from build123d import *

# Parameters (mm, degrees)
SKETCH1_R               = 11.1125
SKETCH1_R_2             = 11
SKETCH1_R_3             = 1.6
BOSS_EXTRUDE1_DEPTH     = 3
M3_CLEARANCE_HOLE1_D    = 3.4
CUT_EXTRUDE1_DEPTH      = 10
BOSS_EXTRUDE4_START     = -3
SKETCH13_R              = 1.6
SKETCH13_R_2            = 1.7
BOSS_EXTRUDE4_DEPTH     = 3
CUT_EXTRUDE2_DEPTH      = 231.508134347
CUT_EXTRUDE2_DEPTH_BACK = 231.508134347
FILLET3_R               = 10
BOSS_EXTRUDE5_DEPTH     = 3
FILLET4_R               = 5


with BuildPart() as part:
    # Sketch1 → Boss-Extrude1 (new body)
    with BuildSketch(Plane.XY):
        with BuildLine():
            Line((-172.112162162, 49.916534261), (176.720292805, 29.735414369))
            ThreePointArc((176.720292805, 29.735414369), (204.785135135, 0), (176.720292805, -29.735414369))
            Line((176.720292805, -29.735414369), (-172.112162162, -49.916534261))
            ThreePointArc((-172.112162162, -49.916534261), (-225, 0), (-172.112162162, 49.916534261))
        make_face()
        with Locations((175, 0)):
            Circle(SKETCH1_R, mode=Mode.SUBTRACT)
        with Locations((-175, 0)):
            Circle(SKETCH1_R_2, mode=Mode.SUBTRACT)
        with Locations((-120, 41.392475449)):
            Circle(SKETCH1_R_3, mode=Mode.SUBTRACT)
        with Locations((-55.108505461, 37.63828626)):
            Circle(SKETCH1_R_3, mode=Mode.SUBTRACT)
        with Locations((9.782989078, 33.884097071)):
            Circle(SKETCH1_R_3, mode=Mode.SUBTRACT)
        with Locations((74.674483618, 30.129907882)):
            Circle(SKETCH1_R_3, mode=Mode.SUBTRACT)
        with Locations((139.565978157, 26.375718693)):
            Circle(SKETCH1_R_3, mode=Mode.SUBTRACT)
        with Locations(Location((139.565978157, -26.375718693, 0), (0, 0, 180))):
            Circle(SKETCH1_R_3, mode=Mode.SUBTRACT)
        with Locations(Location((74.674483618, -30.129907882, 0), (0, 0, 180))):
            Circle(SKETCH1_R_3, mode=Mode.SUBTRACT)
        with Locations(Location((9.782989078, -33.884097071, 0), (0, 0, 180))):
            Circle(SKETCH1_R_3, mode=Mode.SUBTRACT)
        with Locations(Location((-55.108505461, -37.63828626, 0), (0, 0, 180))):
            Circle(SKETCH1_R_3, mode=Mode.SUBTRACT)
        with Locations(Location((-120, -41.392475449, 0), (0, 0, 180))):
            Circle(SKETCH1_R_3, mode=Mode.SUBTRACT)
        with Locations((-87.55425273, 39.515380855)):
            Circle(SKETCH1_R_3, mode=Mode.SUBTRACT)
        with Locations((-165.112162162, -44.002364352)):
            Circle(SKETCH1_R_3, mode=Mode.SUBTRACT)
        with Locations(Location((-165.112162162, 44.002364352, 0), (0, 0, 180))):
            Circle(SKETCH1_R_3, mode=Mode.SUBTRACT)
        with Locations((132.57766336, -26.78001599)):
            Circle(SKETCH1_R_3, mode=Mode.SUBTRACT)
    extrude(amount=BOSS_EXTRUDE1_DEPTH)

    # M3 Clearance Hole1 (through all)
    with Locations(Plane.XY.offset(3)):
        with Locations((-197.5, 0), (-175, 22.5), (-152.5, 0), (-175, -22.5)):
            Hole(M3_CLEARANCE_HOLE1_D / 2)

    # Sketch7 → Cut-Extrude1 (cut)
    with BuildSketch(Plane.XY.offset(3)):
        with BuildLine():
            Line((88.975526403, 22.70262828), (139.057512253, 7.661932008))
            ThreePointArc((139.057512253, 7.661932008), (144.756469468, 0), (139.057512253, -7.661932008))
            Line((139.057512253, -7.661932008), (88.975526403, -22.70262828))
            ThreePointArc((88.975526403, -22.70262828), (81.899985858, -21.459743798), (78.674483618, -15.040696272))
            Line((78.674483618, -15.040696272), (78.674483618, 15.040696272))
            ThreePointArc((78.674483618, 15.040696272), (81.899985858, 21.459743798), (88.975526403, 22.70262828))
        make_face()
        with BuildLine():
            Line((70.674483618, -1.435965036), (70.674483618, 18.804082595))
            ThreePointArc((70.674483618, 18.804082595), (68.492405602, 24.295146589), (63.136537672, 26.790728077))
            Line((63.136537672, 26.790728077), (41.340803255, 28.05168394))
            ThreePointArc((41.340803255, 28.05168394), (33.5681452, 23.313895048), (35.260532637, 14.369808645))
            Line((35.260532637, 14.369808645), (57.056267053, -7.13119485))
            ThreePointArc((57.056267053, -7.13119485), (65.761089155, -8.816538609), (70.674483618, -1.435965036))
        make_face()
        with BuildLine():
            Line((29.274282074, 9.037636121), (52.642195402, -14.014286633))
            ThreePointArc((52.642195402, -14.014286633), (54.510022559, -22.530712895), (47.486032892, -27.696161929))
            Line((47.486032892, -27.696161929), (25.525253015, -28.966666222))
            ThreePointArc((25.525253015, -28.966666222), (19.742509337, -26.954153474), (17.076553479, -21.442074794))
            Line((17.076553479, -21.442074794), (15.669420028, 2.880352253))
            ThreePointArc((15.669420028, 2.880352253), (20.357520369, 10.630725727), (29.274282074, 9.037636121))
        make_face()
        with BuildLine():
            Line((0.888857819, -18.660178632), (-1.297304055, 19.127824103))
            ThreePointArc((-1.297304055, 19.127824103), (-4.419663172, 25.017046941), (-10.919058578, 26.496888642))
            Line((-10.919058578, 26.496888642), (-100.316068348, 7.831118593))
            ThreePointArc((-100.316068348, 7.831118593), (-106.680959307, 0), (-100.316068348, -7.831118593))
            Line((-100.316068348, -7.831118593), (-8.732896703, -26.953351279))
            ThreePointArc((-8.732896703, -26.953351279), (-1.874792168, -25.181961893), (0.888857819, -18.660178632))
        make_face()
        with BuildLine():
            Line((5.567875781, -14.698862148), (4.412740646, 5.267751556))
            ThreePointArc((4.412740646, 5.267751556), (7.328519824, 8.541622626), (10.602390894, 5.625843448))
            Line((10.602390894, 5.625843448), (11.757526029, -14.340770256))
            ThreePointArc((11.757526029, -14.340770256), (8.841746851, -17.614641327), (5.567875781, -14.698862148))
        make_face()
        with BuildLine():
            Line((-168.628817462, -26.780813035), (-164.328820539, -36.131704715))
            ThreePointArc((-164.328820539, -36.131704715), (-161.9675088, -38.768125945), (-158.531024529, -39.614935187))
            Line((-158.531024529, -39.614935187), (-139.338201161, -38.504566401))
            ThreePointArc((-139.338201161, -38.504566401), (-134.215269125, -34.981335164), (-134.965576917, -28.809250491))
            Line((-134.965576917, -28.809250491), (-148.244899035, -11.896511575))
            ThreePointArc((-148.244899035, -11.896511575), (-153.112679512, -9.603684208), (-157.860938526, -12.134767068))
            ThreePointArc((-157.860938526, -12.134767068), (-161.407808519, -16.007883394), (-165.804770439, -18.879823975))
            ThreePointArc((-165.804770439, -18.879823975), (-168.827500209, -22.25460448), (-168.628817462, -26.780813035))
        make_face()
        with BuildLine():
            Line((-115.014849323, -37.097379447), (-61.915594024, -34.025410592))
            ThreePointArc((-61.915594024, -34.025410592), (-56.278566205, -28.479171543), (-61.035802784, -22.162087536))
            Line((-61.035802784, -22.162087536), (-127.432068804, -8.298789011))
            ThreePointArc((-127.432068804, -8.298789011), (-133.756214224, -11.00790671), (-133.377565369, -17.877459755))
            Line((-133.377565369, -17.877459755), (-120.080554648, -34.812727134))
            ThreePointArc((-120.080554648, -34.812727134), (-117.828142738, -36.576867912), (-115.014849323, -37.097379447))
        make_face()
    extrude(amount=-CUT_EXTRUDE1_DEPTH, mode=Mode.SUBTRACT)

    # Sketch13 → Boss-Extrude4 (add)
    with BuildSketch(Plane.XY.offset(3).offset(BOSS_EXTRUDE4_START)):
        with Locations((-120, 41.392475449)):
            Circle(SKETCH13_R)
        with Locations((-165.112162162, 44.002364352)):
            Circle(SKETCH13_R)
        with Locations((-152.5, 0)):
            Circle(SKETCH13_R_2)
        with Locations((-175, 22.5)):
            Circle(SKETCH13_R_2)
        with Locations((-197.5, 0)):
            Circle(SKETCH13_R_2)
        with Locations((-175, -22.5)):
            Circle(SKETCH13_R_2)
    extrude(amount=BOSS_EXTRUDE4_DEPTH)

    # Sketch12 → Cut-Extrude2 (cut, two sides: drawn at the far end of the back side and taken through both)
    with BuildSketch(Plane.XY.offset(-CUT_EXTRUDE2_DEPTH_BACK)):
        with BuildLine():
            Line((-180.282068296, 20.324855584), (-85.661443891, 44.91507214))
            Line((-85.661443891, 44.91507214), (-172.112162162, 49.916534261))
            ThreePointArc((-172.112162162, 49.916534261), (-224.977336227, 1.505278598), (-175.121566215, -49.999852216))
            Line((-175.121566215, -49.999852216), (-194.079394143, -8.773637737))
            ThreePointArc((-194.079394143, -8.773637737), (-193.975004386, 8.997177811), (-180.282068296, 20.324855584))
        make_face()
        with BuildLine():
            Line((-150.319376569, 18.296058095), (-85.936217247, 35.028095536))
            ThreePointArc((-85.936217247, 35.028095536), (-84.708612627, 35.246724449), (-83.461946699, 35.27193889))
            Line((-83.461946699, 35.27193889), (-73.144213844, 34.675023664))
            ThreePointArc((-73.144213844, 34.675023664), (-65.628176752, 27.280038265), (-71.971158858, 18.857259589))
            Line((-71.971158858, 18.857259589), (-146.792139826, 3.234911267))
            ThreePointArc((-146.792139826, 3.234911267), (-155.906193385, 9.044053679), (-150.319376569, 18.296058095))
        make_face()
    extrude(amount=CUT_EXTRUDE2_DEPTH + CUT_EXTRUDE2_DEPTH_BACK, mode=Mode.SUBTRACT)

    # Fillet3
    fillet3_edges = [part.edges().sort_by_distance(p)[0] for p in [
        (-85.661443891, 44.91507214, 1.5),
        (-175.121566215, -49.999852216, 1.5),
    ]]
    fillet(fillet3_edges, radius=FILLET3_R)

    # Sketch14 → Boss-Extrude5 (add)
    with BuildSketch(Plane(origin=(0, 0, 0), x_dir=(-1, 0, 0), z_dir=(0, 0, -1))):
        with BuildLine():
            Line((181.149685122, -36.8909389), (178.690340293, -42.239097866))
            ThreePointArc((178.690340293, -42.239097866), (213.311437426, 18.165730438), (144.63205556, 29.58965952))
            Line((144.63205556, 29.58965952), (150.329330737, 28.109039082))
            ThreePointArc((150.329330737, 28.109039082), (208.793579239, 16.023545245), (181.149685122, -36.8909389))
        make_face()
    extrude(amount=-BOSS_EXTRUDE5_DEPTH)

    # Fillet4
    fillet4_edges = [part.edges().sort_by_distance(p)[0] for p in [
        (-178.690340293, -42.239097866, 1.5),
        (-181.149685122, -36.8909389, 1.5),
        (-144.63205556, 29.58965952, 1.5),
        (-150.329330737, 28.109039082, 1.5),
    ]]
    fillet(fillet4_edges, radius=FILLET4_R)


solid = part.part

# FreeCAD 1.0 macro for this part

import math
import FreeCAD as App
import Part
import Sketcher

V = App.Vector


def edges_at(feature, points):
    """Names of the edges that pass closest to the given points."""
    edges = feature.Shape.Edges
    near = lambda p: min(range(len(edges)), key=lambda i: edges[i].distToShape(Part.Vertex(*p))[0])
    return sorted({f"Edge{near(p) + 1}" for p in points})

doc = App.newDocument("Part")
params = doc.addObject("Spreadsheet::Sheet", "Params")
for row, (alias, value) in enumerate([
    ("sketch1_diameter", "22 mm"),
    ("sketch1_radius", "50 mm"),
    ("sketch1_diameter2", "3.2 mm"),
    ("pad1_length", "3 mm"),
    ("sketch2_diameter", "3.4 mm"),
    ("hole_diameter", "3.4 mm"),
    ("sketch3_radius", "8 mm"),
    ("sketch3_radius2", "8 mm"),
    ("sketch3_radius3", "8 mm"),
    ("sketch3_radius4", "8 mm"),
    ("sketch3_radius5", "8 mm"),
    ("pocket1_length", "10 mm"),
    ("sketch4_diameter", "3.2 mm"),
    ("sketch4_diameter2", "3.4 mm"),
    ("pad2_length", "3 mm"),
    ("sketch5_radius", "50 mm"),
    ("sketch5_radius2", "21 mm"),
    ("sketch5_radius3", "8 mm"),
    ("fillet_radius", "10 mm"),
    ("sketch6_radius", "42.4 mm"),
    ("sketch6_radius2", "37.4 mm"),
    ("pad3_length", "3 mm"),
    ("fillet2_radius", "5 mm"),
], start=1):
    params.set(f"A{row}", alias)
    params.set(f"B{row}", "=" + value)
    params.setAlias(f"B{row}", alias)

body = doc.addObject("PartDesign::Body", "Body")

# Sketch on XY plane
sketch1 = body.newObject("Sketcher::SketchObject", "Sketch")
sketch1.AttachmentSupport = (doc.getObject("XY_Plane"), [""])
sketch1.MapMode = "FlatFace"
sketch1.addGeometry(Part.LineSegment(V(176.720293, 29.735414, 0), V(-172.112162, 49.916534, 0)), False)
sketch1.addGeometry(Part.ArcOfCircle(Part.Circle(V(-175, 0, 0), V(0, 0, 1), 50), math.radians(86.688939), math.radians(273.311061)), False)
sketch1.addGeometry(Part.LineSegment(V(-172.112162, -49.916534, 0), V(176.720293, -29.735414, 0)), False)
sketch1.addGeometry(Part.ArcOfCircle(Part.Circle(V(175, 0, 0), V(0, 0, 1), 29.785135), math.radians(-86.688939), math.radians(86.688939)), False)
sketch1.addGeometry(Part.Circle(V(139.565978, -26.375719, 0), V(0, 0, 1), 1.6), False)
sketch1.addGeometry(Part.Circle(V(132.577663, -26.780016, 0), V(0, 0, 1), 1.6), False)
sketch1.addGeometry(Part.Circle(V(74.674484, -30.129908, 0), V(0, 0, 1), 1.6), False)
sketch1.addGeometry(Part.Circle(V(9.782989, -33.884097, 0), V(0, 0, 1), 1.6), False)
sketch1.addGeometry(Part.Circle(V(175, 0, 0), V(0, 0, 1), 11.1125), False)
sketch1.addGeometry(Part.Circle(V(-55.108505, -37.638286, 0), V(0, 0, 1), 1.6), False)
sketch1.addGeometry(Part.Circle(V(-120, -41.392475, 0), V(0, 0, 1), 1.6), False)
sketch1.addGeometry(Part.Circle(V(-165.112162, -44.002364, 0), V(0, 0, 1), 1.6), False)
sketch1.addGeometry(Part.Circle(V(-175, 0, 0), V(0, 0, 1), 11), False)
sketch1.addGeometry(Part.Circle(V(139.565978, 26.375719, 0), V(0, 0, 1), 1.6), False)
sketch1.addGeometry(Part.Circle(V(74.674484, 30.129908, 0), V(0, 0, 1), 1.6), False)
sketch1.addGeometry(Part.Circle(V(9.782989, 33.884097, 0), V(0, 0, 1), 1.6), False)
sketch1.addGeometry(Part.Circle(V(-55.108505, 37.638286, 0), V(0, 0, 1), 1.6), False)
sketch1.addGeometry(Part.Circle(V(-87.554253, 39.515381, 0), V(0, 0, 1), 1.6), False)
sketch1.addGeometry(Part.Circle(V(-120, 41.392475, 0), V(0, 0, 1), 1.6), False)
sketch1.addGeometry(Part.Circle(V(-165.112162, 44.002364, 0), V(0, 0, 1), 1.6), False)
sketch1.addConstraint(Sketcher.Constraint("Tangent", 0, 2, 1, 1))
sketch1.addConstraint(Sketcher.Constraint("Tangent", 1, 2, 2, 1))
sketch1.addConstraint(Sketcher.Constraint("Tangent", 2, 2, 3, 1))
sketch1.addConstraint(Sketcher.Constraint("Tangent", 3, 2, 0, 1))
sketch1.addConstraint(Sketcher.Constraint("Coincident", 8, 3, 3, 3))
sketch1.addConstraint(Sketcher.Constraint("Coincident", 12, 3, 1, 3))
sketch1.addConstraint(Sketcher.Constraint("Equal", 4, 5))
sketch1.addConstraint(Sketcher.Constraint("Equal", 5, 6))
sketch1.addConstraint(Sketcher.Constraint("Equal", 6, 7))
sketch1.addConstraint(Sketcher.Constraint("Equal", 7, 9))
sketch1.addConstraint(Sketcher.Constraint("Equal", 9, 10))
sketch1.addConstraint(Sketcher.Constraint("Equal", 10, 11))
sketch1.addConstraint(Sketcher.Constraint("Equal", 11, 13))
sketch1.addConstraint(Sketcher.Constraint("Equal", 13, 14))
sketch1.addConstraint(Sketcher.Constraint("Equal", 14, 15))
sketch1.addConstraint(Sketcher.Constraint("Equal", 15, 16))
sketch1.addConstraint(Sketcher.Constraint("Equal", 16, 17))
sketch1.addConstraint(Sketcher.Constraint("Equal", 17, 18))
sketch1.addConstraint(Sketcher.Constraint("Equal", 18, 19))
sketch1.addConstraint(Sketcher.Constraint("Symmetric", 1, 3, 3, 3, -1, 1))
sketch1.addConstraint(Sketcher.Constraint("Symmetric", 4, 3, 13, 3, -1))
sketch1.addConstraint(Sketcher.Constraint("Symmetric", 6, 3, 14, 3, -1))
sketch1.addConstraint(Sketcher.Constraint("Symmetric", 7, 3, 15, 3, -1))
sketch1.addConstraint(Sketcher.Constraint("Symmetric", 9, 3, 16, 3, -1))
sketch1.addConstraint(Sketcher.Constraint("Symmetric", 10, 3, 18, 3, -1))
sketch1.addConstraint(Sketcher.Constraint("Symmetric", 11, 3, 19, 3, -1))
sketch1.addConstraint(Sketcher.Constraint("PointOnObject", 1, 3, -1))
sketch1.addConstraint(Sketcher.Constraint("Diameter", 12, 22.0))
sketch1.addConstraint(Sketcher.Constraint("Radius", 1, 50.0))
sketch1.addConstraint(Sketcher.Constraint("Diameter", 4, 3.2))
sketch1.addConstraint(Sketcher.Constraint("Diameter", 8, 22.225))
sketch1.addConstraint(Sketcher.Constraint("DistanceX", 1, 3, -1, 1, 175.0))
sketch1.addConstraint(Sketcher.Constraint("DistanceX", 10, 3, -1, 1, 120.0))
sketch1.addConstraint(Sketcher.Constraint("DistanceX", 0, 2, 19, 3, 7.0))
sketch1.addConstraint(Sketcher.Constraint("Radius", 3, 29.785135))
sketch1.addConstraint(Sketcher.Constraint("DistanceY", 1, 2, 19, 3, 93.918899))
sketch1.addConstraint(Sketcher.Constraint("DistanceY", 2, 2, 5, 3, 2.955398))
sketch1.addConstraint(Sketcher.Constraint("DistanceX", -1, 1, 4, 3, 139.565978))
sketch1.addConstraint(Sketcher.Constraint("DistanceY", 4, 3, -1, 1, 26.375719))
sketch1.addConstraint(Sketcher.Constraint("DistanceX", -1, 1, 7, 3, 9.782989))
sketch1.addConstraint(Sketcher.Constraint("DistanceY", -1, 1, 17, 3, 39.515381))
sketch1.addConstraint(Sketcher.Constraint("DistanceX", 6, 3, 5, 3, 57.90318))
sketch1.addConstraint(Sketcher.Constraint("DistanceY", 6, 3, 5, 3, 3.349892))
sketch1.addConstraint(Sketcher.Constraint("DistanceY", 7, 3, 6, 3, 3.754189))
sketch1.addConstraint(Sketcher.Constraint("DistanceY", 9, 3, 7, 3, 3.754189))
sketch1.addConstraint(Sketcher.Constraint("DistanceX", 9, 3, 6, 3, 129.782989))
sketch1.addConstraint(Sketcher.Constraint("DistanceY", 10, 3, 9, 3, 3.754189))
sketch1.addConstraint(Sketcher.Constraint("DistanceX", 19, 3, 17, 3, 77.557909))
sketch1.addConstraint(Sketcher.Constraint("DistanceX", 5, 3, 2, 2, 44.142629))
sketch1.setExpression("Constraints[27]", "Params.sketch1_diameter")
sketch1.setExpression("Constraints[28]", "Params.sketch1_radius")
sketch1.setExpression("Constraints[29]", "Params.sketch1_diameter2")
pad1 = body.newObject("PartDesign::Pad", "Pad")
pad1.Profile = sketch1
pad1.setExpression("Length", "Params.pad1_length")

# Sketch on XY plane
sketch2 = body.newObject("Sketcher::SketchObject", "Sketch001")
sketch2.AttachmentSupport = (doc.getObject("XY_Plane"), [""])
sketch2.MapMode = "FlatFace"
sketch2.AttachmentOffset = App.Placement(V(0, 0, 3), App.Rotation())
sketch2.addGeometry(Part.Circle(V(-197.5, 0, 0), V(0, 0, 1), 1.7), False)
sketch2.addGeometry(Part.Circle(V(-175, 22.5, 0), V(0, 0, 1), 1.7), False)
sketch2.addGeometry(Part.Circle(V(-152.5, 0, 0), V(0, 0, 1), 1.7), False)
sketch2.addGeometry(Part.Circle(V(-175, -22.5, 0), V(0, 0, 1), 1.7), False)
sketch2.addConstraint(Sketcher.Constraint("Equal", 0, 1))
sketch2.addConstraint(Sketcher.Constraint("Equal", 1, 2))
sketch2.addConstraint(Sketcher.Constraint("Equal", 2, 3))
sketch2.addConstraint(Sketcher.Constraint("Symmetric", 1, 3, 3, 3, -1))
sketch2.addConstraint(Sketcher.Constraint("PointOnObject", 0, 3, -1))
sketch2.addConstraint(Sketcher.Constraint("PointOnObject", 2, 3, -1))
sketch2.addConstraint(Sketcher.Constraint("Diameter", 0, 3.4))
sketch2.addConstraint(Sketcher.Constraint("DistanceX", 1, 3, -1, 1, 175.0))
sketch2.addConstraint(Sketcher.Constraint("DistanceX", 0, 3, 2, 3, 45.0))
sketch2.addConstraint(Sketcher.Constraint("DistanceY", 3, 3, 1, 3, 45.0))
sketch2.addConstraint(Sketcher.Constraint("DistanceX", 0, 3, -1, 1, 197.5))
sketch2.setExpression("Constraints[6]", "Params.sketch2_diameter")
doc.recompute()
hole = body.newObject("PartDesign::Hole", "Hole")
hole.Profile = sketch2
hole.ThreadType = "None"
hole.setExpression("Diameter", "Params.hole_diameter")
hole.DepthType = "ThroughAll"

# Sketch on XY plane
sketch3 = body.newObject("Sketcher::SketchObject", "Sketch002")
sketch3.AttachmentSupport = (doc.getObject("XY_Plane"), [""])
sketch3.MapMode = "FlatFace"
sketch3.AttachmentOffset = App.Placement(V(0, 0, 3), App.Rotation())
sketch3.addGeometry(Part.LineSegment(V(139.057512, 7.661932, 0), V(88.975526, 22.702628, 0)), False)
sketch3.addGeometry(Part.ArcOfCircle(Part.Circle(V(86.674484, 15.040696, 0), V(0, 0, 1), 8), math.radians(73.283859), math.radians(180)), False)
sketch3.addGeometry(Part.LineSegment(V(78.674484, 15.040696, 0), V(78.674484, -15.040696, 0)), False)
sketch3.addGeometry(Part.ArcOfCircle(Part.Circle(V(86.674484, -15.040696, 0), V(0, 0, 1), 8), math.radians(180), math.radians(286.716141)), False)
sketch3.addGeometry(Part.LineSegment(V(88.975526, -22.702628, 0), V(139.057512, -7.661932, 0)), False)
sketch3.addGeometry(Part.ArcOfCircle(Part.Circle(V(136.756469, 0, 0), V(0, 0, 1), 8), math.radians(-73.283859), math.radians(73.283859)), False)
sketch3.addGeometry(Part.LineSegment(V(70.674484, -1.435965, 0), V(70.674484, 18.804083, 0)), False)
sketch3.addGeometry(Part.ArcOfCircle(Part.Circle(V(62.674484, 18.804083, 0), V(0, 0, 1), 8), math.radians(0), math.radians(86.688939)), False)
sketch3.addGeometry(Part.LineSegment(V(63.136538, 26.790728, 0), V(41.340803, 28.051684, 0)), False)
sketch3.addGeometry(Part.ArcOfCircle(Part.Circle(V(40.878749, 20.065038, 0), V(0, 0, 1), 8), math.radians(86.688939), math.radians(225.39002)), False)
sketch3.addGeometry(Part.LineSegment(V(35.260533, 14.369809, 0), V(57.056267, -7.131195, 0)), False)
sketch3.addGeometry(Part.ArcOfCircle(Part.Circle(V(62.674484, -1.435965, 0), V(0, 0, 1), 8), math.radians(-134.60998), math.radians(0)), False)
sketch3.addGeometry(Part.LineSegment(V(52.642195, -14.014287, 0), V(29.274282, 9.037636, 0)), False)
sketch3.addGeometry(Part.ArcOfCircle(Part.Circle(V(23.656066, 3.342406, 0), V(0, 0, 1), 8), math.radians(45.39002), math.radians(183.311061)), False)
sketch3.addGeometry(Part.LineSegment(V(15.66942, 2.880352, 0), V(17.076553, -21.442075, 0)), False)
sketch3.addGeometry(Part.ArcOfCircle(Part.Circle(V(25.063199, -20.980021, 0), V(0, 0, 1), 8), math.radians(-176.688939), math.radians(-86.688939)), False)
sketch3.addGeometry(Part.LineSegment(V(25.525253, -28.966666, 0), V(47.486033, -27.696162, 0)), False)
sketch3.addGeometry(Part.ArcOfCircle(Part.Circle(V(47.023979, -19.709516, 0), V(0, 0, 1), 8), math.radians(-86.688939), math.radians(45.39002)), False)
sketch3.addGeometry(Part.LineSegment(V(0.888858, -18.660179, 0), V(-1.297304, 19.127824, 0)), False)
sketch3.addGeometry(Part.ArcOfCircle(Part.Circle(V(-9.28395, 18.66577, 0), V(0, 0, 1), 8), math.radians(3.311061), math.radians(101.793712)), False)
sketch3.addGeometry(Part.LineSegment(V(-10.919059, 26.496889, 0), V(-100.316068, 7.831119, 0)), False)
sketch3.addGeometry(Part.ArcOfCircle(Part.Circle(V(-98.680959, 0, 0), V(0, 0, 1), 8), math.radians(101.793712), math.radians(258.206288)), False)
sketch3.addGeometry(Part.LineSegment(V(-100.316068, -7.831119, 0), V(-8.732897, -26.953351, 0)), False)
sketch3.addGeometry(Part.ArcOfCircle(Part.Circle(V(-7.097788, -19.122233, 0), V(0, 0, 1), 8), math.radians(-101.793712), math.radians(3.311061)), False)
sketch3.addGeometry(Part.LineSegment(V(4.412741, 5.267752, 0), V(5.567876, -14.698862, 0)), False)
sketch3.addGeometry(Part.ArcOfCircle(Part.Circle(V(8.662701, -14.519816, 0), V(0, 0, 1), 3.1), math.radians(-176.688939), math.radians(3.311061)), False)
sketch3.addGeometry(Part.LineSegment(V(11.757526, -14.34077, 0), V(10.602391, 5.625843, 0)), False)
sketch3.addGeometry(Part.ArcOfCircle(Part.Circle(V(7.507566, 5.446798, 0), V(0, 0, 1), 3.1), math.radians(3.311061), math.radians(183.311061)), False)
sketch3.addGeometry(Part.LineSegment(V(-168.628817, -26.780813, 0), V(-164.328821, -36.131705, 0)), False)
sketch3.addGeometry(Part.ArcOfCircle(Part.Circle(V(-158.877565, -33.624951, 0), V(0, 0, 1), 6), math.radians(-155.304717), math.radians(-86.688939)), False)
sketch3.addGeometry(Part.LineSegment(V(-158.531025, -39.614935, 0), V(-139.338201, -38.504566, 0)), False)
sketch3.addGeometry(Part.ArcOfCircle(Part.Circle(V(-139.684742, -32.514582, 0), V(0, 0, 1), 6), math.radians(-86.688939), math.radians(38.137828)), False)
sketch3.addGeometry(Part.LineSegment(V(-134.965577, -28.80925, 0), V(-148.244899, -11.896512, 0)), False)
sketch3.addGeometry(Part.ArcOfCircle(Part.Circle(V(-152.964064, -15.601843, 0), V(0, 0, 1), 6), math.radians(38.137828), math.radians(144.700812)), False)
sketch3.addGeometry(Part.ArcOfCircle(Part.Circle(V(-175, 0, 0), V(0, 0, 1), 21), math.radians(-64.032065), math.radians(-35.299187)), False)
sketch3.addGeometry(Part.ArcOfCircle(Part.Circle(V(-163.177562, -24.274059, 0), V(0, 0, 1), 6), math.radians(115.967935), math.radians(204.695283)), False)
sketch3.addGeometry(Part.LineSegment(V(-115.014849, -37.097379, 0), V(-61.915594, -34.025411, 0)), False)
sketch3.addGeometry(Part.ArcOfCircle(Part.Circle(V(-62.262135, -28.035426, 0), V(0, 0, 1), 6), math.radians(-86.688939), math.radians(78.206288)), False)
sketch3.addGeometry(Part.LineSegment(V(-61.035803, -22.162088, 0), V(-127.432069, -8.298789, 0)), False)
sketch3.addGeometry(Part.ArcOfCircle(Part.Circle(V(-128.658401, -14.172128, 0), V(0, 0, 1), 6), math.radians(78.206288), math.radians(218.137828)), False)
sketch3.addGeometry(Part.LineSegment(V(-133.377565, -17.87746, 0), V(-120.080555, -34.812727, 0)), False)
sketch3.addGeometry(Part.ArcOfCircle(Part.Circle(V(-115.36139, -31.107395, 0), V(0, 0, 1), 6), math.radians(-141.862172), math.radians(-86.688939)), False)
sketch3.addConstraint(Sketcher.Constraint("Coincident", 0, 2, 1, 1))
sketch3.addConstraint(Sketcher.Constraint("Coincident", 1, 2, 2, 1))
sketch3.addConstraint(Sketcher.Constraint("Coincident", 2, 2, 3, 1))
sketch3.addConstraint(Sketcher.Constraint("Coincident", 3, 2, 4, 1))
sketch3.addConstraint(Sketcher.Constraint("Coincident", 4, 2, 5, 1))
sketch3.addConstraint(Sketcher.Constraint("Coincident", 5, 2, 0, 1))
sketch3.addConstraint(Sketcher.Constraint("Coincident", 6, 2, 7, 1))
sketch3.addConstraint(Sketcher.Constraint("Coincident", 7, 2, 8, 1))
sketch3.addConstraint(Sketcher.Constraint("Coincident", 8, 2, 9, 1))
sketch3.addConstraint(Sketcher.Constraint("Coincident", 9, 2, 10, 1))
sketch3.addConstraint(Sketcher.Constraint("Coincident", 10, 2, 11, 1))
sketch3.addConstraint(Sketcher.Constraint("Coincident", 11, 2, 6, 1))
sketch3.addConstraint(Sketcher.Constraint("Coincident", 12, 2, 13, 1))
sketch3.addConstraint(Sketcher.Constraint("Coincident", 13, 2, 14, 1))
sketch3.addConstraint(Sketcher.Constraint("Coincident", 14, 2, 15, 1))
sketch3.addConstraint(Sketcher.Constraint("Coincident", 15, 2, 16, 1))
sketch3.addConstraint(Sketcher.Constraint("Coincident", 16, 2, 17, 1))
sketch3.addConstraint(Sketcher.Constraint("Coincident", 17, 2, 12, 1))
sketch3.addConstraint(Sketcher.Constraint("Coincident", 18, 2, 19, 1))
sketch3.addConstraint(Sketcher.Constraint("Coincident", 19, 2, 20, 1))
sketch3.addConstraint(Sketcher.Constraint("Coincident", 20, 2, 21, 1))
sketch3.addConstraint(Sketcher.Constraint("Coincident", 21, 2, 22, 1))
sketch3.addConstraint(Sketcher.Constraint("Coincident", 22, 2, 23, 1))
sketch3.addConstraint(Sketcher.Constraint("Coincident", 23, 2, 18, 1))
sketch3.addConstraint(Sketcher.Constraint("Coincident", 24, 2, 25, 1))
sketch3.addConstraint(Sketcher.Constraint("Coincident", 25, 2, 26, 1))
sketch3.addConstraint(Sketcher.Constraint("Coincident", 26, 2, 27, 1))
sketch3.addConstraint(Sketcher.Constraint("Coincident", 27, 2, 24, 1))
sketch3.addConstraint(Sketcher.Constraint("Coincident", 28, 2, 29, 1))
sketch3.addConstraint(Sketcher.Constraint("Coincident", 29, 2, 30, 1))
sketch3.addConstraint(Sketcher.Constraint("Coincident", 30, 2, 31, 1))
sketch3.addConstraint(Sketcher.Constraint("Coincident", 31, 2, 32, 1))
sketch3.addConstraint(Sketcher.Constraint("Coincident", 32, 2, 33, 1))
sketch3.addConstraint(Sketcher.Constraint("Coincident", 33, 2, 34, 2))
sketch3.addConstraint(Sketcher.Constraint("Coincident", 34, 1, 35, 1))
sketch3.addConstraint(Sketcher.Constraint("Coincident", 35, 2, 28, 1))
sketch3.addConstraint(Sketcher.Constraint("Coincident", 36, 2, 37, 1))
sketch3.addConstraint(Sketcher.Constraint("Coincident", 37, 2, 38, 1))
sketch3.addConstraint(Sketcher.Constraint("Coincident", 38, 2, 39, 1))
sketch3.addConstraint(Sketcher.Constraint("Coincident", 39, 2, 40, 1))
sketch3.addConstraint(Sketcher.Constraint("Coincident", 40, 2, 41, 1))
sketch3.addConstraint(Sketcher.Constraint("Coincident", 41, 2, 36, 1))
sketch3.addConstraint(Sketcher.Constraint("Vertical", 2))
sketch3.addConstraint(Sketcher.Constraint("Vertical", 6))
sketch3.addConstraint(Sketcher.Constraint("PointOnObject", 5, 3, -1))
sketch3.addConstraint(Sketcher.Constraint("PointOnObject", 21, 3, -1))
sketch3.addConstraint(Sketcher.Constraint("PointOnObject", 34, 3, -1))
sketch3.addConstraint(Sketcher.Constraint("Radius", 1, 8.0))
sketch3.addConstraint(Sketcher.Constraint("Radius", 3, 8.0))
sketch3.addConstraint(Sketcher.Constraint("Radius", 5, 8.0))
sketch3.addConstraint(Sketcher.Constraint("Radius", 7, 8.0))
sketch3.addConstraint(Sketcher.Constraint("Radius", 9, 8.0))
sketch3.addConstraint(Sketcher.Constraint("Radius", 11, 8.0))
sketch3.addConstraint(Sketcher.Constraint("Radius", 13, 8.0))
sketch3.addConstraint(Sketcher.Constraint("Radius", 15, 8.0))
sketch3.addConstraint(Sketcher.Constraint("Radius", 17, 8.0))
sketch3.addConstraint(Sketcher.Constraint("Radius", 19, 8.0))
sketch3.addConstraint(Sketcher.Constraint("Radius", 21, 8.0))
sketch3.addConstraint(Sketcher.Constraint("Radius", 23, 8.0))
sketch3.addConstraint(Sketcher.Constraint("Radius", 29, 6.0))
sketch3.addConstraint(Sketcher.Constraint("Radius", 31, 6.0))
sketch3.addConstraint(Sketcher.Constraint("Radius", 33, 6.0))
sketch3.addConstraint(Sketcher.Constraint("Radius", 34, 21.0))
sketch3.addConstraint(Sketcher.Constraint("Radius", 35, 6.0))
sketch3.addConstraint(Sketcher.Constraint("Radius", 37, 6.0))
sketch3.addConstraint(Sketcher.Constraint("Radius", 39, 6.0))
sketch3.addConstraint(Sketcher.Constraint("Radius", 41, 6.0))
sketch3.addConstraint(Sketcher.Constraint("Radius", 25, 3.1))
sketch3.addConstraint(Sketcher.Constraint("Radius", 27, 3.1))
sketch3.addConstraint(Sketcher.Constraint("Distance", 24, 20.0))
sketch3.addConstraint(Sketcher.Constraint("Distance", 26, 20.0))
sketch3.addConstraint(Sketcher.Constraint("DistanceX", 34, 3, -1, 1, 175.0))
sketch3.addConstraint(Sketcher.Constraint("Distance", 16, 21.997501))
sketch3.addConstraint(Sketcher.Constraint("Distance", 22, 93.558202))
sketch3.addConstraint(Sketcher.Constraint("DistanceX", -1, 1, 15, 3, 25.063199))
sketch3.addConstraint(Sketcher.Constraint("DistanceX", -1, 1, 25, 3, 8.662701))
sketch3.addConstraint(Sketcher.Constraint("DistanceX", 39, 3, -1, 1, 128.658401))
sketch3.addConstraint(Sketcher.Constraint("DistanceX", 30, 2, -1, 1, 139.338201))
sketch3.addConstraint(Sketcher.Constraint("DistanceX", 32, 2, -1, 1, 148.244899))
sketch3.addConstraint(Sketcher.Constraint("Distance", 8, 21.832179))
sketch3.addConstraint(Sketcher.Constraint("Distance", 12, 32.824541))
sketch3.addConstraint(Sketcher.Constraint("Distance", 18, 37.851188))
sketch3.addConstraint(Sketcher.Constraint("Distance", 28, 10.292189))
sketch3.addConstraint(Sketcher.Constraint("Distance", 32, 21.503049))
sketch3.addConstraint(Sketcher.Constraint("Distance", 38, 67.82813))
sketch3.addConstraint(Sketcher.Constraint("DistanceY", 2, 2, 2, 1, 30.081393))
sketch3.addConstraint(Sketcher.Constraint("DistanceY", 6, 1, 6, 2, 20.240048))
sketch3.addConstraint(Sketcher.Constraint("DistanceX", -1, 1, 5, 3, 136.756469))
sketch3.addConstraint(Sketcher.Constraint("DistanceX", -1, 1, 9, 3, 40.878749))
sketch3.addConstraint(Sketcher.Constraint("DistanceY", -1, 1, 9, 3, 20.065038))
sketch3.addConstraint(Sketcher.Constraint("DistanceY", 15, 3, -1, 1, 20.980021))
sketch3.addConstraint(Sketcher.Constraint("DistanceX", -1, 1, 17, 3, 47.023979))
sketch3.addConstraint(Sketcher.Constraint("DistanceX", 19, 3, -1, 1, 9.28395))
sketch3.addConstraint(Sketcher.Constraint("DistanceY", -1, 1, 19, 3, 18.66577))
sketch3.addConstraint(Sketcher.Constraint("DistanceX", 21, 3, -1, 1, 98.680959))
sketch3.addConstraint(Sketcher.Constraint("DistanceY", 29, 3, -1, 1, 33.624951))
sketch3.addConstraint(Sketcher.Constraint("DistanceX", 31, 3, -1, 1, 139.684742))
sketch3.addConstraint(Sketcher.Constraint("DistanceX", 35, 3, -1, 1, 163.177562))
sketch3.addConstraint(Sketcher.Constraint("DistanceX", 41, 3, -1, 1, 115.36139))
sketch3.addConstraint(Sketcher.Constraint("DistanceY", -1, 1, 0, 2, 22.702628))
sketch3.addConstraint(Sketcher.Constraint("DistanceY", 3, 2, -1, 1, 22.702628))
sketch3.addConstraint(Sketcher.Constraint("DistanceY", -1, 1, 7, 2, 26.790728))
sketch3.addConstraint(Sketcher.Constraint("DistanceY", -1, 1, 9, 2, 14.369809))
sketch3.addConstraint(Sketcher.Constraint("DistanceX", -1, 1, 13, 2, 15.66942))
sketch3.addConstraint(Sketcher.Constraint("DistanceY", 16, 2, -1, 1, 27.696162))
sketch3.addConstraint(Sketcher.Constraint("DistanceX", 19, 2, -1, 1, 10.919059))
sketch3.addConstraint(Sketcher.Constraint("DistanceX", 20, 2, -1, 1, 100.316068))
sketch3.addConstraint(Sketcher.Constraint("DistanceX", 21, 2, -1, 1, 100.316068))
sketch3.addConstraint(Sketcher.Constraint("DistanceY", 22, 2, -1, 1, 26.953351))
sketch3.addConstraint(Sketcher.Constraint("DistanceY", 23, 2, -1, 1, 18.660179))
sketch3.addConstraint(Sketcher.Constraint("DistanceY", 25, 2, -1, 1, 14.34077))
sketch3.addConstraint(Sketcher.Constraint("DistanceX", -1, 1, 26, 2, 10.602391))
sketch3.addConstraint(Sketcher.Constraint("DistanceX", -1, 1, 27, 2, 4.412741))
sketch3.addConstraint(Sketcher.Constraint("DistanceX", 28, 2, -1, 1, 164.328821))
sketch3.addConstraint(Sketcher.Constraint("DistanceY", 31, 2, -1, 1, 28.80925))
sketch3.addConstraint(Sketcher.Constraint("DistanceY", 32, 2, -1, 1, 11.896512))
sketch3.addConstraint(Sketcher.Constraint("DistanceX", 33, 2, -1, 1, 157.860939))
sketch3.addConstraint(Sketcher.Constraint("DistanceX", 34, 1, -1, 1, 165.80477))
sketch3.addConstraint(Sketcher.Constraint("DistanceY", 36, 2, -1, 1, 34.025411))
sketch3.addConstraint(Sketcher.Constraint("DistanceX", 38, 2, -1, 1, 127.432069))
sketch3.addConstraint(Sketcher.Constraint("DistanceY", 38, 2, -1, 1, 8.298789))
sketch3.addConstraint(Sketcher.Constraint("DistanceY", 39, 2, -1, 1, 17.87746))
sketch3.addConstraint(Sketcher.Constraint("DistanceX", 41, 2, -1, 1, 115.014849))
sketch3.addConstraint(Sketcher.Constraint("DistanceY", 41, 2, -1, 1, 37.097379))
sketch3.addConstraint(Sketcher.Constraint("Distance", 0, 52.291757))
sketch3.addConstraint(Sketcher.Constraint("Distance", 4, 52.291757))
sketch3.addConstraint(Sketcher.Constraint("Distance", 10, 30.616126))
sketch3.addConstraint(Sketcher.Constraint("Distance", 14, 24.363097))
sketch3.addConstraint(Sketcher.Constraint("Distance", 30, 19.224916))
sketch3.addConstraint(Sketcher.Constraint("Distance", 36, 53.188043))
sketch3.addConstraint(Sketcher.Constraint("Distance", 40, 21.531692))
sketch3.addConstraint(Sketcher.Constraint("DistanceX", -1, 1, 1, 3, 86.674484))
sketch3.addConstraint(Sketcher.Constraint("DistanceY", -1, 1, 1, 3, 15.040696))
sketch3.addConstraint(Sketcher.Constraint("DistanceY", 3, 3, -1, 1, 15.040696))
sketch3.addConstraint(Sketcher.Constraint("DistanceX", -1, 1, 7, 3, 62.674484))
sketch3.addConstraint(Sketcher.Constraint("DistanceY", -1, 1, 7, 3, 18.804083))
sketch3.addConstraint(Sketcher.Constraint("DistanceY", 11, 3, -1, 1, 1.435965))
sketch3.addConstraint(Sketcher.Constraint("DistanceX", -1, 1, 13, 3, 23.656066))
sketch3.addConstraint(Sketcher.Constraint("DistanceY", -1, 1, 13, 3, 3.342406))
sketch3.addConstraint(Sketcher.Constraint("DistanceY", 17, 3, -1, 1, 19.709516))
sketch3.addConstraint(Sketcher.Constraint("DistanceX", 23, 3, -1, 1, 7.097788))
sketch3.addConstraint(Sketcher.Constraint("DistanceY", 25, 3, -1, 1, 14.519816))
sketch3.addConstraint(Sketcher.Constraint("DistanceX", -1, 1, 27, 3, 7.507566))
sketch3.addConstraint(Sketcher.Constraint("DistanceX", 29, 3, -1, 1, 158.877565))
sketch3.addConstraint(Sketcher.Constraint("DistanceX", 37, 3, -1, 1, 62.262135))
sketch3.addConstraint(Sketcher.Constraint("DistanceY", -1, 1, 1, 2, 15.040696))
sketch3.addConstraint(Sketcher.Constraint("DistanceY", -1, 1, 6, 2, 18.804083))
sketch3.addConstraint(Sketcher.Constraint("DistanceX", -1, 1, 12, 2, 29.274282))
sketch3.setExpression("Constraints[47]", "Params.sketch3_radius")
sketch3.setExpression("Constraints[48]", "Params.sketch3_radius2")
sketch3.setExpression("Constraints[49]", "Params.sketch3_radius3")
sketch3.setExpression("Constraints[50]", "Params.sketch3_radius4")
sketch3.setExpression("Constraints[51]", "Params.sketch3_radius5")
pocket1 = body.newObject("PartDesign::Pocket", "Pocket")
pocket1.Profile = sketch3
pocket1.setExpression("Length", "Params.pocket1_length")

# Sketch on XY plane
sketch4 = body.newObject("Sketcher::SketchObject", "Sketch003")
sketch4.AttachmentSupport = (doc.getObject("XY_Plane"), [""])
sketch4.MapMode = "FlatFace"
sketch4.addGeometry(Part.Circle(V(-120, 41.392475, 0), V(0, 0, 1), 1.6), False)
sketch4.addGeometry(Part.Circle(V(-165.112162, 44.002364, 0), V(0, 0, 1), 1.6), False)
sketch4.addGeometry(Part.Circle(V(-152.5, 0, 0), V(0, 0, 1), 1.7), False)
sketch4.addGeometry(Part.Circle(V(-175, 22.5, 0), V(0, 0, 1), 1.7), False)
sketch4.addGeometry(Part.Circle(V(-197.5, 0, 0), V(0, 0, 1), 1.7), False)
sketch4.addGeometry(Part.Circle(V(-175, -22.5, 0), V(0, 0, 1), 1.7), False)
sketch4.addConstraint(Sketcher.Constraint("Equal", 0, 1))
sketch4.addConstraint(Sketcher.Constraint("Equal", 2, 3))
sketch4.addConstraint(Sketcher.Constraint("Equal", 3, 4))
sketch4.addConstraint(Sketcher.Constraint("Equal", 4, 5))
sketch4.addConstraint(Sketcher.Constraint("Symmetric", 3, 3, 5, 3, -1))
sketch4.addConstraint(Sketcher.Constraint("PointOnObject", 2, 3, -1))
sketch4.addConstraint(Sketcher.Constraint("PointOnObject", 4, 3, -1))
sketch4.addConstraint(Sketcher.Constraint("Diameter", 0, 3.2))
sketch4.addConstraint(Sketcher.Constraint("Diameter", 2, 3.4))
sketch4.addConstraint(Sketcher.Constraint("DistanceX", 0, 3, -1, 1, 120.0))
sketch4.addConstraint(Sketcher.Constraint("DistanceX", 3, 3, -1, 1, 175.0))
sketch4.addConstraint(Sketcher.Constraint("DistanceX", 4, 3, 2, 3, 45.0))
sketch4.addConstraint(Sketcher.Constraint("DistanceY", 5, 3, 3, 3, 45.0))
sketch4.addConstraint(Sketcher.Constraint("DistanceX", 2, 3, -1, 1, 152.5))
sketch4.addConstraint(Sketcher.Constraint("DistanceY", 0, 3, 1, 3, 2.609889))
sketch4.addConstraint(Sketcher.Constraint("DistanceY", -1, 1, 0, 3, 41.392475))
sketch4.addConstraint(Sketcher.Constraint("DistanceX", 1, 3, -1, 1, 165.112162))
sketch4.setExpression("Constraints[7]", "Params.sketch4_diameter")
sketch4.setExpression("Constraints[8]", "Params.sketch4_diameter2")
pad2 = body.newObject("PartDesign::Pad", "Pad001")
pad2.Profile = sketch4
pad2.setExpression("Length", "Params.pad2_length")

# Sketch on XY plane
sketch5 = body.newObject("Sketcher::SketchObject", "Sketch004")
sketch5.AttachmentSupport = (doc.getObject("XY_Plane"), [""])
sketch5.MapMode = "FlatFace"
sketch5.addGeometry(Part.LineSegment(V(-180.282068, 20.324856, 0), V(-85.661444, 44.915072, 0)), False)
sketch5.addGeometry(Part.LineSegment(V(-85.661444, 44.915072, 0), V(-172.112162, 49.916534, 0)), False)
sketch5.addGeometry(Part.ArcOfCircle(Part.Circle(V(-175, 0, 0), V(0, 0, 1), 50), math.radians(86.688939), math.radians(269.860695)), False)
sketch5.addGeometry(Part.LineSegment(V(-175.121566, -49.999852, 0), V(-194.079394, -8.773638, 0)), False)
sketch5.addGeometry(Part.ArcOfCircle(Part.Circle(V(-175, 0, 0), V(0, 0, 1), 21), math.radians(104.567894), math.radians(204.695283)), False)
sketch5.addGeometry(Part.LineSegment(V(-85.936217, 35.028096, 0), V(-150.319377, 18.296058, 0)), False)
sketch5.addGeometry(Part.ArcOfCircle(Part.Circle(V(-148.373413, 10.808189, 0), V(0, 0, 1), 7.736599), math.radians(104.567894), math.radians(281.793712)), False)
sketch5.addGeometry(Part.LineSegment(V(-146.79214, 3.234911, 0), V(-71.971159, 18.85726, 0)), False)
sketch5.addGeometry(Part.ArcOfCircle(Part.Circle(V(-73.606268, 26.688378, 0), V(0, 0, 1), 8), math.radians(-78.206288), math.radians(86.688939)), False)
sketch5.addGeometry(Part.LineSegment(V(-73.144214, 34.675024, 0), V(-83.461947, 35.271939, 0)), False)
sketch5.addGeometry(Part.ArcOfCircle(Part.Circle(V(-83.924001, 27.285293, 0), V(0, 0, 1), 8), math.radians(86.688939), math.radians(104.567894)), False)
sketch5.addConstraint(Sketcher.Constraint("Coincident", 0, 2, 1, 1))
sketch5.addConstraint(Sketcher.Constraint("Tangent", 1, 2, 2, 1))
sketch5.addConstraint(Sketcher.Constraint("Coincident", 2, 2, 3, 1))
sketch5.addConstraint(Sketcher.Constraint("Tangent", 3, 2, 4, 2))
sketch5.addConstraint(Sketcher.Constraint("Tangent", 4, 1, 0, 1))
sketch5.addConstraint(Sketcher.Constraint("Tangent", 5, 2, 6, 1))
sketch5.addConstraint(Sketcher.Constraint("Tangent", 6, 2, 7, 1))
sketch5.addConstraint(Sketcher.Constraint("Tangent", 7, 2, 8, 1))
sketch5.addConstraint(Sketcher.Constraint("Tangent", 8, 2, 9, 1))
sketch5.addConstraint(Sketcher.Constraint("Tangent", 9, 2, 10, 1))
sketch5.addConstraint(Sketcher.Constraint("Tangent", 10, 2, 5, 1))
sketch5.addConstraint(Sketcher.Constraint("Coincident", 4, 3, 2, 3))
sketch5.addConstraint(Sketcher.Constraint("Equal", 8, 10))
sketch5.addConstraint(Sketcher.Constraint("PointOnObject", 2, 3, -1))
sketch5.addConstraint(Sketcher.Constraint("Parallel", 0, 5))
sketch5.addConstraint(Sketcher.Constraint("Parallel", 1, 9))
sketch5.addConstraint(Sketcher.Constraint("Radius", 2, 50.0))
sketch5.addConstraint(Sketcher.Constraint("Radius", 4, 21.0))
sketch5.addConstraint(Sketcher.Constraint("Radius", 8, 8.0))
sketch5.addConstraint(Sketcher.Constraint("DistanceX", 2, 3, -1, 1, 175.0))
sketch5.addConstraint(Sketcher.Constraint("Radius", 6, 7.736599))
sketch5.addConstraint(Sketcher.Constraint("DistanceX", 10, 3, -1, 1, 83.924001))
sketch5.addConstraint(Sketcher.Constraint("Distance", 0, 97.763701))
sketch5.addConstraint(Sketcher.Constraint("Distance", 5, 66.521818))
sketch5.addConstraint(Sketcher.Constraint("DistanceY", -1, 1, 6, 3, 10.808189))
sketch5.addConstraint(Sketcher.Constraint("DistanceY", -1, 1, 8, 3, 26.688378))
sketch5.addConstraint(Sketcher.Constraint("DistanceX", 7, 2, -1, 1, 71.971159))
sketch5.addConstraint(Sketcher.Constraint("DistanceX", 3, 2, 6, 3, 45.705982))
sketch5.setExpression("Constraints[16]", "Params.sketch5_radius")
sketch5.setExpression("Constraints[17]", "Params.sketch5_radius2")
sketch5.setExpression("Constraints[18]", "Params.sketch5_radius3")
pocket2 = body.newObject("PartDesign::Pocket", "Pocket001")
pocket2.Profile = sketch5
pocket2.Type = "ThroughAll"
pocket2.Midplane = True
doc.recompute()

fillet = body.newObject("PartDesign::Fillet", "Fillet")
fillet.Base = (pocket2, edges_at(pocket2, [(-85.661, 44.915, 1.5), (-175.122, -50, 1.5)]))
fillet.setExpression("Radius", "Params.fillet_radius")

# Sketch on XY plane
sketch6 = body.newObject("Sketcher::SketchObject", "Sketch005")
sketch6.AttachmentSupport = (doc.getObject("XY_Plane"), [""])
sketch6.MapMode = "FlatFace"
sketch6.addGeometry(Part.LineSegment(V(-181.149685, -36.890939, 0), V(-178.69034, -42.239098, 0)), False)
sketch6.addGeometry(Part.ArcOfCircle(Part.Circle(V(-175, 0, 0), V(0, 0, 1), 42.4), math.radians(44.256309), math.radians(265.006868)), False)
sketch6.addGeometry(Part.LineSegment(V(-144.632056, 29.58966, 0), V(-150.329331, 28.109039, 0)), False)
sketch6.addGeometry(Part.ArcOfCircle(Part.Circle(V(-175, 0, 0), V(0, 0, 1), 37.4), math.radians(48.727305), math.radians(260.535872)), False)
sketch6.addConstraint(Sketcher.Constraint("Coincident", 0, 2, 1, 2))
sketch6.addConstraint(Sketcher.Constraint("Coincident", 1, 1, 2, 1))
sketch6.addConstraint(Sketcher.Constraint("Coincident", 2, 2, 3, 1))
sketch6.addConstraint(Sketcher.Constraint("Coincident", 3, 2, 0, 1))
sketch6.addConstraint(Sketcher.Constraint("Coincident", 3, 3, 1, 3))
sketch6.addConstraint(Sketcher.Constraint("PointOnObject", 1, 3, -1))
sketch6.addConstraint(Sketcher.Constraint("Equal", 0, 2))
sketch6.addConstraint(Sketcher.Constraint("Radius", 1, 42.4))
sketch6.addConstraint(Sketcher.Constraint("Radius", 3, 37.4))
sketch6.addConstraint(Sketcher.Constraint("DistanceX", 1, 3, -1, 1, 175.0))
sketch6.addConstraint(Sketcher.Constraint("DistanceY", 3, 2, 1, 1, 66.480598))
sketch6.addConstraint(Sketcher.Constraint("DistanceX", 0, 2, -1, 1, 178.69034))
sketch6.addConstraint(Sketcher.Constraint("DistanceY", -1, 1, 1, 1, 29.58966))
sketch6.setExpression("Constraints[7]", "Params.sketch6_radius")
sketch6.setExpression("Constraints[8]", "Params.sketch6_radius2")
pad3 = body.newObject("PartDesign::Pad", "Pad002")
pad3.Profile = sketch6
pad3.setExpression("Length", "Params.pad3_length")
doc.recompute()

fillet2 = body.newObject("PartDesign::Fillet", "Fillet001")
fillet2.Base = (pad3, edges_at(pad3, [
    (-178.69, -42.239, 1.5),
    (-181.15, -36.891, 1.5),
    (-144.632, 29.59, 1.5),
    (-150.329, 28.109, 1.5),
]))
fillet2.setExpression("Radius", "Params.fillet2_radius")

doc.recompute()
